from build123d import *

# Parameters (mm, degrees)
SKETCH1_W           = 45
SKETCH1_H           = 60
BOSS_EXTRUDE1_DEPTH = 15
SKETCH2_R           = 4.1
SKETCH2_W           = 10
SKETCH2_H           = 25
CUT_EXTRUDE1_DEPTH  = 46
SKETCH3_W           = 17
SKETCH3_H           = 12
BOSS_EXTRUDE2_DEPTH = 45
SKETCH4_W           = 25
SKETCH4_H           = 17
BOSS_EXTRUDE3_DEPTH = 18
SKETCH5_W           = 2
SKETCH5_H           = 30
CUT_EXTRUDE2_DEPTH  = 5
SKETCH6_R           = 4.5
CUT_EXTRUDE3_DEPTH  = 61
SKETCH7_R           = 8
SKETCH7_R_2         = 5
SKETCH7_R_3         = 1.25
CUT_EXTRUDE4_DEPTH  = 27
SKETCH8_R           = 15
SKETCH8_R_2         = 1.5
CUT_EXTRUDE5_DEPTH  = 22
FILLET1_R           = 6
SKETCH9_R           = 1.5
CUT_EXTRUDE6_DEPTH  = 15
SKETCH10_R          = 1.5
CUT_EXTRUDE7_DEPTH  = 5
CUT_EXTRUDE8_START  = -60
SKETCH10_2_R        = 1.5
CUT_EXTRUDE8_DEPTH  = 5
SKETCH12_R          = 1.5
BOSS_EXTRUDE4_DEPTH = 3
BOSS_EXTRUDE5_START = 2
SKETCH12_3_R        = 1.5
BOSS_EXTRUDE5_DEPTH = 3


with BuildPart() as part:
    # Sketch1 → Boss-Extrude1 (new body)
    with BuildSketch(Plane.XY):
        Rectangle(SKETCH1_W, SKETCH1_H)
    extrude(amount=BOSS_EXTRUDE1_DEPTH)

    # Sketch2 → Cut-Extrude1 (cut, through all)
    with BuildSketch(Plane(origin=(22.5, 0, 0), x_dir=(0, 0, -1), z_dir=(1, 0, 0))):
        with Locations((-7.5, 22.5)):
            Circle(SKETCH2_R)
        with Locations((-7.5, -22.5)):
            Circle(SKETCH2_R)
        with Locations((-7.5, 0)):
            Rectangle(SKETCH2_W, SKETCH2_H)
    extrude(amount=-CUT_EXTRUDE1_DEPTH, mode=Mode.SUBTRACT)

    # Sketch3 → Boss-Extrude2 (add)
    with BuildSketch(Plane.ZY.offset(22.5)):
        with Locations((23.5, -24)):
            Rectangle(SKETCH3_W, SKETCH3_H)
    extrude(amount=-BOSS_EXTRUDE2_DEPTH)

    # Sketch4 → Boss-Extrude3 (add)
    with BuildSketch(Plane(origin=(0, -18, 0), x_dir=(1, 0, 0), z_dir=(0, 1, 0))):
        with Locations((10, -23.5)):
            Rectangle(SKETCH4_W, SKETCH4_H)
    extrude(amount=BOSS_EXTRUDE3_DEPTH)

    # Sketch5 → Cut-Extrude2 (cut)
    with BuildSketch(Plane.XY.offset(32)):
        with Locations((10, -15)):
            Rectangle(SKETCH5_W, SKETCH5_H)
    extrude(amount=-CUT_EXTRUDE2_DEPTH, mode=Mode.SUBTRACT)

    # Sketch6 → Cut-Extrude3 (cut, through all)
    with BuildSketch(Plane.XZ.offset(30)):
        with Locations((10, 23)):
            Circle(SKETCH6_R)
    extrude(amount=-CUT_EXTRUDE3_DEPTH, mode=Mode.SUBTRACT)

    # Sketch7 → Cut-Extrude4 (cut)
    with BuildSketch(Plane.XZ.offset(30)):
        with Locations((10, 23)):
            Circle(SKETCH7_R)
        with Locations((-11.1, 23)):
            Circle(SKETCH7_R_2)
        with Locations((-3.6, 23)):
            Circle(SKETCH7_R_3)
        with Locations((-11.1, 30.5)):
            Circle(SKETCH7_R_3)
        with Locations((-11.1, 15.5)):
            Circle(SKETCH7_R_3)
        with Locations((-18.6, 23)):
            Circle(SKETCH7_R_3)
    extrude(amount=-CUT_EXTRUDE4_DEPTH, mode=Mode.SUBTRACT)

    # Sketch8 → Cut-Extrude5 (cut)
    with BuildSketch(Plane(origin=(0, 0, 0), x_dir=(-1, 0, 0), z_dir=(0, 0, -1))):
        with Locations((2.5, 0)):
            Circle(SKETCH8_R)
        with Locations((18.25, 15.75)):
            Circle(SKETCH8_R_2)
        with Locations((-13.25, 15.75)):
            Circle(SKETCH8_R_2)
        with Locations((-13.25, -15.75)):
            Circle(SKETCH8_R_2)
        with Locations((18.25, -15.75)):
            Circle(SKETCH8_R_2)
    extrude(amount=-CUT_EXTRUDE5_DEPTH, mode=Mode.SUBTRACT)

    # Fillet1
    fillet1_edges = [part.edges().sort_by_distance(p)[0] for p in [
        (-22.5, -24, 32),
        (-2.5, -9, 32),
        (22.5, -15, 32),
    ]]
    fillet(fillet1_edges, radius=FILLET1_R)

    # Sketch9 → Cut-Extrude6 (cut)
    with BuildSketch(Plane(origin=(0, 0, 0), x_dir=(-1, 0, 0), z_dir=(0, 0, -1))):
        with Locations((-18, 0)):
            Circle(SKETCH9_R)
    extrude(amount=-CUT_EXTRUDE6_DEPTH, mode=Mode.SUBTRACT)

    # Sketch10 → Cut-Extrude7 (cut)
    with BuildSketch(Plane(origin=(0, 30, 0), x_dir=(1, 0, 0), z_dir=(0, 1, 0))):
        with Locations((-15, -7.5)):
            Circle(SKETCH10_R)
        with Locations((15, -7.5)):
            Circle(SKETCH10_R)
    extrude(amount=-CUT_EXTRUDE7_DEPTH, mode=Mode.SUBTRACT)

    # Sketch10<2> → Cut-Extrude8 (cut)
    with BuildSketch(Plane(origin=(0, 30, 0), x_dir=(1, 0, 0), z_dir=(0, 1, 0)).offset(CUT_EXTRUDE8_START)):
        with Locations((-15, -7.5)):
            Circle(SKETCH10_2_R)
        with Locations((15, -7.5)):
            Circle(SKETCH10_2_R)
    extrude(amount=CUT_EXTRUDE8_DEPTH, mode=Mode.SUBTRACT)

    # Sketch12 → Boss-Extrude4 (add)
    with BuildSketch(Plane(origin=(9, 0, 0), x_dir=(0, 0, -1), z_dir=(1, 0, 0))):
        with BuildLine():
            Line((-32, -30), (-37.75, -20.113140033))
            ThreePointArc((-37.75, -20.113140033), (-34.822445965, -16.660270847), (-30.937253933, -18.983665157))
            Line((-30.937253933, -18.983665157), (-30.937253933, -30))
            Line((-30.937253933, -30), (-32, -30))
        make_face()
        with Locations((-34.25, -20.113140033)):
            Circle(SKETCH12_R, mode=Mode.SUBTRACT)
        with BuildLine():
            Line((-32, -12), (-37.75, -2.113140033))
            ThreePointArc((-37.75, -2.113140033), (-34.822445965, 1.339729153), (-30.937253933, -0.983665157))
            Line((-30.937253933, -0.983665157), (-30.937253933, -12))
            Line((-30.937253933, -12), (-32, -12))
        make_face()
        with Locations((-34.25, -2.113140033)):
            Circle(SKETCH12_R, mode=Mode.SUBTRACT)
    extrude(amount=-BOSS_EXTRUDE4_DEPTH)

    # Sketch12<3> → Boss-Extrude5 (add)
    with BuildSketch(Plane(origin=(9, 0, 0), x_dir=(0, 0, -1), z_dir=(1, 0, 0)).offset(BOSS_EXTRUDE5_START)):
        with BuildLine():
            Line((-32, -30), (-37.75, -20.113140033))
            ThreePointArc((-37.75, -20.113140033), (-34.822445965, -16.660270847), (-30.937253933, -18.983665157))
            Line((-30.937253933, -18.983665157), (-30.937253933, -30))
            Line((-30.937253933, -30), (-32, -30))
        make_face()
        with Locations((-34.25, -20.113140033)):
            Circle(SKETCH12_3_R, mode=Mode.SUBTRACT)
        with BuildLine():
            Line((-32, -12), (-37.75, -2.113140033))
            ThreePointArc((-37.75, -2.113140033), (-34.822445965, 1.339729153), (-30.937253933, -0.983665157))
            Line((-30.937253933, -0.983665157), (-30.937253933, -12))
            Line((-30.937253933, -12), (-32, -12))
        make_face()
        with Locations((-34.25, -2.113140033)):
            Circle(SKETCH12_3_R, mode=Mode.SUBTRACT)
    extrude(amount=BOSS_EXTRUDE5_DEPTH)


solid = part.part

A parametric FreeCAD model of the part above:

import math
import FreeCAD as App
import Part
import Sketcher
from FreeCAD import Vector


def edges_at(feature, points):
    """Names of the edges that pass closest to the given points."""
    edges = feature.Shape.Edges
    near = lambda p: min(range(len(edges)), key=lambda i: edges[i].distToShape(Part.Vertex(*p))[0])
    return sorted({f"Edge{near(p) + 1}" for p in points})


def add_polygon(sketch, points):
    """Adds a closed chain of lines whose ends are joined by coincident constraints."""
    first, n = sketch.GeometryCount, len(points)
    for a, b in zip(points, points[1:] + points[:1]):
        sketch.addGeometry(Part.LineSegment(App.Vector(*a, 0), App.Vector(*b, 0)), False)
    for i in range(n):
        sketch.addConstraint(Sketcher.Constraint("Coincident", first + i, 2, first + (i + 1) % n, 1))

doc = App.newDocument("Part")
body = doc.addObject("PartDesign::Body", "Body")

# Sketch on XY plane
sketch1 = body.newObject("Sketcher::SketchObject", "Sketch")
sketch1.AttachmentSupport = (doc.getObject("XY_Plane"), [""])
sketch1.MapMode = "FlatFace"
add_polygon(sketch1, [(-22.5, 30), (-22.5, -30), (22.5, -30), (22.5, 30)])  # lines 0-3
sketch1.addConstraint([
    Sketcher.Constraint("Vertical", 0),
    Sketcher.Constraint("Horizontal", 1),
    Sketcher.Constraint("Vertical", 2),
    Sketcher.Constraint("Horizontal", 3),
    Sketcher.Constraint("Symmetric", 0, 2, 2, 2, -1, 1),
    Sketcher.Constraint("DistanceX", 1, 1, 1, 2, 45.0),
    Sketcher.Constraint("DistanceY", 0, 2, 0, 1, 60.0),
])
pad1 = body.newObject("PartDesign::Pad", "Pad")
pad1.Profile = sketch1
pad1.Length = 15

# Sketch on YZ plane
sketch2 = body.newObject("Sketcher::SketchObject", "Sketch001")
sketch2.AttachmentSupport = (doc.getObject("YZ_Plane"), [""])
sketch2.MapMode = "FlatFace"
sketch2.AttachmentOffset = App.Placement(Vector(0, 0, 22.5), App.Rotation())
sketch2.addGeometry(Part.Circle(Vector(22.5, 7.5, 0), Vector(0, 0, 1), 4.1), False)  # 0
sketch2.addGeometry(Part.Circle(Vector(-22.5, 7.5, 0), Vector(0, 0, 1), 4.1), False)  # 1
add_polygon(sketch2, [(12.5, 12.5), (-12.5, 12.5), (-12.5, 2.5), (12.5, 2.5)])  # lines 2-5
sketch2.addConstraint([
    Sketcher.Constraint("Horizontal", 2),
    Sketcher.Constraint("Vertical", 3),
    Sketcher.Constraint("Horizontal", 4),
    Sketcher.Constraint("Vertical", 5),
    Sketcher.Constraint("Equal", 0, 1),
    Sketcher.Constraint("Symmetric", 0, 3, 1, 3, -2),
    Sketcher.Constraint("Diameter", 0, 8.2),
    Sketcher.Constraint("DistanceX", 2, 2, 2, 1, 25.0),
    Sketcher.Constraint("DistanceY", 3, 2, 3, 1, 10.0),
    Sketcher.Constraint("DistanceX", 1, 3, 0, 3, 45.0),
    Sketcher.Constraint("DistanceX", 1, 3, 2, 2, 10.0),
    Sketcher.Constraint("DistanceY", 1, 3, 2, 2, 5.0),
    Sketcher.Constraint("DistanceY", -1, 1, 0, 3, 7.5),
])
pocket1 = body.newObject("PartDesign::Pocket", "Pocket")
pocket1.Profile = sketch2
pocket1.Type = "ThroughAll"

# Sketch on YZ plane
sketch3 = body.newObject("Sketcher::SketchObject", "Sketch002")
sketch3.AttachmentSupport = (doc.getObject("YZ_Plane"), [""])
sketch3.MapMode = "FlatFace"
sketch3.AttachmentOffset = App.Placement(Vector(0, 0, -22.5), App.Rotation())
add_polygon(sketch3, [(-18, 15), (-30, 15), (-30, 32), (-18, 32)])  # lines 0-3
sketch3.addConstraint([
    Sketcher.Constraint("Horizontal", 0),
    Sketcher.Constraint("Vertical", 1),
    Sketcher.Constraint("Horizontal", 2),
    Sketcher.Constraint("Vertical", 3),
    Sketcher.Constraint("DistanceX", 0, 2, 0, 1, 12.0),
    Sketcher.Constraint("DistanceY", 1, 1, 1, 2, 17.0),
    Sketcher.Constraint("DistanceX", 0, 2, -1, 1, 30.0),
    Sketcher.Constraint("DistanceY", -1, 1, 0, 2, 15.0),
])
pad2 = body.newObject("PartDesign::Pad", "Pad001")
pad2.Profile = sketch3
pad2.Length = 45

# Sketch on XZ plane
sketch4 = body.newObject("Sketcher::SketchObject", "Sketch003")
sketch4.AttachmentSupport = (doc.getObject("XZ_Plane"), [""])
sketch4.MapMode = "FlatFace"
sketch4.AttachmentOffset = App.Placement(Vector(0, 0, 18), App.Rotation())
add_polygon(sketch4, [(-2.5, 15), (-2.5, 32), (22.5, 32), (22.5, 15)])  # lines 0-3
sketch4.addConstraint([
    Sketcher.Constraint("Vertical", 0),
    Sketcher.Constraint("Horizontal", 1),
    Sketcher.Constraint("Vertical", 2),
    Sketcher.Constraint("Horizontal", 3),
    Sketcher.Constraint("DistanceX", 1, 1, 1, 2, 25.0),
    Sketcher.Constraint("DistanceY", 0, 1, 0, 2, 17.0),
    Sketcher.Constraint("DistanceY", -1, 1, 0, 2, 32.0),
    Sketcher.Constraint("DistanceX", 0, 2, -1, 1, 2.5),
])
pad3 = body.newObject("PartDesign::Pad", "Pad002")
pad3.Profile = sketch4
pad3.Length = 18
pad3.Reversed = True

# Sketch on XY plane
sketch5 = body.newObject("Sketcher::SketchObject", "Sketch004")
sketch5.AttachmentSupport = (doc.getObject("XY_Plane"), [""])
sketch5.MapMode = "FlatFace"
sketch5.AttachmentOffset = App.Placement(Vector(0, 0, 32), App.Rotation())
add_polygon(sketch5, [(9, 0), (9, -30), (11, -30), (11, 0)])  # lines 0-3
sketch5.addConstraint([
    Sketcher.Constraint("Vertical", 0),
    Sketcher.Constraint("Horizontal", 1),
    Sketcher.Constraint("Vertical", 2),
    Sketcher.Constraint("Horizontal", 3),
    Sketcher.Constraint("PointOnObject", 2, 2, -1),
    Sketcher.Constraint("DistanceX", 1, 1, 1, 2, 2.0),
    Sketcher.Constraint("DistanceY", 0, 2, 0, 1, 30.0),
    Sketcher.Constraint("DistanceX", -1, 1, 0, 2, 9.0),
])
pocket2 = body.newObject("PartDesign::Pocket", "Pocket001")
pocket2.Profile = sketch5
pocket2.Length = 5

# Sketch on XZ plane
sketch6 = body.newObject("Sketcher::SketchObject", "Sketch005")
sketch6.AttachmentSupport = (doc.getObject("XZ_Plane"), [""])
sketch6.MapMode = "FlatFace"
sketch6.AttachmentOffset = App.Placement(Vector(0, 0, 30), App.Rotation())
sketch6.addGeometry(Part.Circle(Vector(10, 23, 0), Vector(0, 0, 1), 4.5), False)
sketch6.addConstraint([
    Sketcher.Constraint("Diameter", 0, 9.0),
    Sketcher.Constraint("DistanceX", -1, 1, 0, 3, 10.0),
    Sketcher.Constraint("DistanceY", -1, 1, 0, 3, 23.0),
])
pocket3 = body.newObject("PartDesign::Pocket", "Pocket002")
pocket3.Profile = sketch6
pocket3.Type = "ThroughAll"

# Sketch on XZ plane
sketch7 = body.newObject("Sketcher::SketchObject", "Sketch006")
sketch7.AttachmentSupport = (doc.getObject("XZ_Plane"), [""])
sketch7.MapMode = "FlatFace"
sketch7.AttachmentOffset = App.Placement(Vector(0, 0, 30), App.Rotation())
sketch7.addGeometry([
    Part.Circle(Vector(10, 23, 0), Vector(0, 0, 1), 8),  # 0
    Part.Circle(Vector(-11.1, 23, 0), Vector(0, 0, 1), 5),  # 1
    Part.Circle(Vector(-3.6, 23, 0), Vector(0, 0, 1), 1.25),  # 2
    Part.Circle(Vector(-11.1, 30.5, 0), Vector(0, 0, 1), 1.25),  # 3
    Part.Circle(Vector(-11.1, 15.5, 0), Vector(0, 0, 1), 1.25),  # 4
    Part.Circle(Vector(-18.6, 23, 0), Vector(0, 0, 1), 1.25),  # 5
], False)
sketch7.addConstraint([
    Sketcher.Constraint("Equal", 2, 3),
    Sketcher.Constraint("Equal", 3, 4),
    Sketcher.Constraint("Equal", 4, 5),
    Sketcher.Constraint("Horizontal", 0, 3, 1, 3),
    Sketcher.Constraint("Horizontal", 1, 3, 2, 3),
    Sketcher.Constraint("Horizontal", 2, 3, 5, 3),
    Sketcher.Constraint("Vertical", 1, 3, 3, 3),
    Sketcher.Constraint("Vertical", 3, 3, 4, 3),
    Sketcher.Constraint("Diameter", 0, 16.0),
    Sketcher.Constraint("Diameter", 1, 10.0),
    Sketcher.Constraint("Diameter", 2, 2.5),
    Sketcher.Constraint("DistanceX", -1, 1, 0, 3, 10.0),
    Sketcher.Constraint("DistanceY", -1, 1, 0, 3, 23.0),
    Sketcher.Constraint("DistanceY", 4, 3, 3, 3, 15.0),
    Sketcher.Constraint("DistanceX", 5, 3, 2, 3, 15.0),
    Sketcher.Constraint("DistanceX", 1, 3, -1, 1, 11.1),
    Sketcher.Constraint("DistanceX", 2, 3, -1, 1, 3.6),
    Sketcher.Constraint("DistanceY", -1, 1, 3, 3, 30.5),
])
pocket4 = body.newObject("PartDesign::Pocket", "Pocket003")
pocket4.Profile = sketch7
pocket4.Length = 27

# Sketch on XY plane
sketch8 = body.newObject("Sketcher::SketchObject", "Sketch007")
sketch8.AttachmentSupport = (doc.getObject("XY_Plane"), [""])
sketch8.MapMode = "FlatFace"
sketch8.addGeometry([
    Part.Circle(Vector(-2.5, 0, 0), Vector(0, 0, 1), 15),  # 0
    Part.Circle(Vector(-18.25, 15.75, 0), Vector(0, 0, 1), 1.5),  # 1
    Part.Circle(Vector(13.25, 15.75, 0), Vector(0, 0, 1), 1.5),  # 2
    Part.Circle(Vector(13.25, -15.75, 0), Vector(0, 0, 1), 1.5),  # 3
    Part.Circle(Vector(-18.25, -15.75, 0), Vector(0, 0, 1), 1.5),  # 4
], False)
sketch8.addConstraint([
    Sketcher.Constraint("Equal", 1, 2),
    Sketcher.Constraint("Equal", 2, 3),
    Sketcher.Constraint("Equal", 3, 4),
    Sketcher.Constraint("Symmetric", 2, 3, 3, 3, -1),
    Sketcher.Constraint("Symmetric", 1, 3, 4, 3, -1),
    Sketcher.Constraint("PointOnObject", 0, 3, -1),
    Sketcher.Constraint("Horizontal", 1, 3, 2, 3),
    Sketcher.Constraint("Diameter", 0, 30.0),
    Sketcher.Constraint("Diameter", 1, 3.0),
    Sketcher.Constraint("DistanceX", 0, 3, -1, 1, 2.5),
    Sketcher.Constraint("DistanceX", 1, 3, 2, 3, 31.5),
    Sketcher.Constraint("DistanceY", 3, 3, 2, 3, 31.5),
    Sketcher.Constraint("DistanceX", 1, 3, -1, 1, 18.25),
])
pocket5 = body.newObject("PartDesign::Pocket", "Pocket004")
pocket5.Profile = sketch8
pocket5.Length = 22
pocket5.Reversed = True
doc.recompute()

fillet = body.newObject("PartDesign::Fillet", "Fillet")
fillet.Base = (pocket5, edges_at(pocket5, [(-22.5, -24, 32), (-2.5, -9, 32), (22.5, -15, 32)]))
fillet.Radius = 6

# Sketch on XY plane
sketch9 = body.newObject("Sketcher::SketchObject", "Sketch008")
sketch9.AttachmentSupport = (doc.getObject("XY_Plane"), [""])
sketch9.MapMode = "FlatFace"
sketch9.addGeometry(Part.Circle(Vector(18, 0, 0), Vector(0, 0, 1), 1.5), False)
sketch9.addConstraint([
    Sketcher.Constraint("PointOnObject", 0, 3, -1),
    Sketcher.Constraint("Diameter", 0, 3.0),
    Sketcher.Constraint("DistanceX", -1, 1, 0, 3, 18.0),
])
pocket6 = body.newObject("PartDesign::Pocket", "Pocket005")
pocket6.Profile = sketch9
pocket6.Length = 15
pocket6.Reversed = True

# Sketch on XZ plane
sketch10 = body.newObject("Sketcher::SketchObject", "Sketch009")
sketch10.AttachmentSupport = (doc.getObject("XZ_Plane"), [""])
sketch10.MapMode = "FlatFace"
sketch10.AttachmentOffset = App.Placement(Vector(0, 0, -30), App.Rotation())
sketch10.addGeometry([
    Part.Circle(Vector(-15, 7.5, 0), Vector(0, 0, 1), 1.5),
    Part.Circle(Vector(15, 7.5, 0), Vector(0, 0, 1), 1.5),
], False)
sketch10.addConstraint([
    Sketcher.Constraint("Equal", 0, 1),
    Sketcher.Constraint("Symmetric", 0, 3, 1, 3, -2),
    Sketcher.Constraint("Diameter", 0, 3.0),
    Sketcher.Constraint("DistanceX", 0, 3, -1, 1, 15.0),
    Sketcher.Constraint("DistanceY", -1, 1, 0, 3, 7.5),
])
pocket7 = body.newObject("PartDesign::Pocket", "Pocket006")
pocket7.Profile = sketch10
pocket7.Length = 5
pocket7.Reversed = True

# Sketch on XZ plane
sketch11 = body.newObject("Sketcher::SketchObject", "Sketch010")
sketch11.AttachmentSupport = (doc.getObject("XZ_Plane"), [""])
sketch11.MapMode = "FlatFace"
sketch11.AttachmentOffset = App.Placement(Vector(0, 0, 30), App.Rotation())
sketch11.addGeometry([
    Part.Circle(Vector(-15, 7.5, 0), Vector(0, 0, 1), 1.5),
    Part.Circle(Vector(15, 7.5, 0), Vector(0, 0, 1), 1.5),
], False)
sketch11.addConstraint([
    Sketcher.Constraint("Equal", 0, 1),
    Sketcher.Constraint("Symmetric", 0, 3, 1, 3, -2),
    Sketcher.Constraint("Diameter", 0, 3.0),
    Sketcher.Constraint("DistanceX", 0, 3, -1, 1, 15.0),
    Sketcher.Constraint("DistanceY", -1, 1, 0, 3, 7.5),
])
pocket8 = body.newObject("PartDesign::Pocket", "Pocket007")
pocket8.Profile = sketch11
pocket8.Length = 5

# Sketch on YZ plane
sketch12 = body.newObject("Sketcher::SketchObject", "Sketch011")
sketch12.AttachmentSupport = (doc.getObject("YZ_Plane"), [""])
sketch12.MapMode = "FlatFace"
sketch12.AttachmentOffset = App.Placement(Vector(0, 0, 9), App.Rotation())
sketch12.addGeometry([
    Part.LineSegment(Vector(-20.11314, 37.75, 0), Vector(-30, 32, 0)),  # 0
    Part.LineSegment(Vector(-30, 32, 0), Vector(-30, 30.937254, 0)),  # 1
    Part.LineSegment(Vector(-30, 30.937254, 0), Vector(-18.983665, 30.937254, 0)),  # 2
    Part.ArcOfCircle(Part.Circle(Vector(-20.11314, 34.25, 0), Vector(0, 0, 1), 3.5), math.radians(-71.173281), math.radians(90)),  # 3
    Part.Circle(Vector(-20.11314, 34.25, 0), Vector(0, 0, 1), 1.5),  # 4
    Part.LineSegment(Vector(-2.11314, 37.75, 0), Vector(-12, 32, 0)),  # 5
    Part.LineSegment(Vector(-12, 32, 0), Vector(-12, 30.937254, 0)),  # 6
    Part.LineSegment(Vector(-12, 30.937254, 0), Vector(-0.983665, 30.937254, 0)),  # 7
    Part.ArcOfCircle(Part.Circle(Vector(-2.11314, 34.25, 0), Vector(0, 0, 1), 3.5), math.radians(-71.173281), math.radians(90)),  # 8
    Part.Circle(Vector(-2.11314, 34.25, 0), Vector(0, 0, 1), 1.5),  # 9
], False)
sketch12.addConstraint([
    Sketcher.Constraint("Coincident", 0, 2, 1, 1),
    Sketcher.Constraint("Coincident", 1, 2, 2, 1),
    Sketcher.Constraint("Coincident", 2, 2, 3, 1),
    Sketcher.Constraint("Coincident", 3, 2, 0, 1),
    Sketcher.Constraint("Coincident", 5, 2, 6, 1),
    Sketcher.Constraint("Coincident", 6, 2, 7, 1),
    Sketcher.Constraint("Coincident", 7, 2, 8, 1),
    Sketcher.Constraint("Coincident", 8, 2, 5, 1),
    Sketcher.Constraint("Vertical", 1),
    Sketcher.Constraint("Horizontal", 2),
    Sketcher.Constraint("Vertical", 6),
    Sketcher.Constraint("Horizontal", 7),
    Sketcher.Constraint("Coincident", 4, 3, 3, 3),
    Sketcher.Constraint("Coincident", 9, 3, 8, 3),
    Sketcher.Constraint("Equal", 3, 8),
    Sketcher.Constraint("Equal", 4, 9),
    Sketcher.Constraint("Parallel", 0, 5),
    Sketcher.Constraint("Horizontal", 4, 3, 8, 3),
    Sketcher.Constraint("Horizontal", 0, 2, 5, 2),
    Sketcher.Constraint("Horizontal", 2, 2, 6, 2),
    Sketcher.Constraint("Vertical", 4, 3, 3, 2),
    Sketcher.Constraint("Vertical", 9, 3, 8, 2),
    Sketcher.Constraint("Diameter", 4, 3.0),
    Sketcher.Constraint("Radius", 3, 3.5),
    Sketcher.Constraint("DistanceX", 0, 2, -1, 1, 30.0),
    Sketcher.Constraint("DistanceY", -1, 1, 0, 2, 32.0),
    Sketcher.Constraint("DistanceX", 5, 2, -1, 1, 12.0),
    Sketcher.Constraint("DistanceY", -1, 1, 3, 3, 34.25),
    Sketcher.Constraint("Distance", 0, 11.437329),
    Sketcher.Constraint("DistanceX", 2, 1, 2, 2, 11.016335),
])
pad4 = body.newObject("PartDesign::Pad", "Pad003")
pad4.Profile = sketch12
pad4.Length = 3
pad4.Reversed = True

# Sketch on YZ plane
sketch13 = body.newObject("Sketcher::SketchObject", "Sketch012")
sketch13.AttachmentSupport = (doc.getObject("YZ_Plane"), [""])
sketch13.MapMode = "FlatFace"
sketch13.AttachmentOffset = App.Placement(Vector(0, 0, 11), App.Rotation())
sketch13.addGeometry([
    Part.LineSegment(Vector(-20.11314, 37.75, 0), Vector(-30, 32, 0)),  # 0
    Part.LineSegment(Vector(-30, 32, 0), Vector(-30, 30.937254, 0)),  # 1
    Part.LineSegment(Vector(-30, 30.937254, 0), Vector(-18.983665, 30.937254, 0)),  # 2
    Part.ArcOfCircle(Part.Circle(Vector(-20.11314, 34.25, 0), Vector(0, 0, 1), 3.5), math.radians(-71.173281), math.radians(90)),  # 3
    Part.Circle(Vector(-20.11314, 34.25, 0), Vector(0, 0, 1), 1.5),  # 4
    Part.LineSegment(Vector(-2.11314, 37.75, 0), Vector(-12, 32, 0)),  # 5
    Part.LineSegment(Vector(-12, 32, 0), Vector(-12, 30.937254, 0)),  # 6
    Part.LineSegment(Vector(-12, 30.937254, 0), Vector(-0.983665, 30.937254, 0)),  # 7
    Part.ArcOfCircle(Part.Circle(Vector(-2.11314, 34.25, 0), Vector(0, 0, 1), 3.5), math.radians(-71.173281), math.radians(90)),  # 8
    Part.Circle(Vector(-2.11314, 34.25, 0), Vector(0, 0, 1), 1.5),  # 9
], False)
sketch13.addConstraint([
    Sketcher.Constraint("Coincident", 0, 2, 1, 1),
    Sketcher.Constraint("Coincident", 1, 2, 2, 1),
    Sketcher.Constraint("Coincident", 2, 2, 3, 1),
    Sketcher.Constraint("Coincident", 3, 2, 0, 1),
    Sketcher.Constraint("Coincident", 5, 2, 6, 1),
    Sketcher.Constraint("Coincident", 6, 2, 7, 1),
    Sketcher.Constraint("Coincident", 7, 2, 8, 1),
    Sketcher.Constraint("Coincident", 8, 2, 5, 1),
    Sketcher.Constraint("Vertical", 1),
    Sketcher.Constraint("Horizontal", 2),
    Sketcher.Constraint("Vertical", 6),
    Sketcher.Constraint("Horizontal", 7),
    Sketcher.Constraint("Coincident", 4, 3, 3, 3),
    Sketcher.Constraint("Coincident", 9, 3, 8, 3),
    Sketcher.Constraint("Equal", 3, 8),
    Sketcher.Constraint("Equal", 4, 9),
    Sketcher.Constraint("Parallel", 0, 5),
    Sketcher.Constraint("Horizontal", 4, 3, 8, 3),
    Sketcher.Constraint("Horizontal", 0, 2, 5, 2),
    Sketcher.Constraint("Horizontal", 2, 2, 6, 2),
    Sketcher.Constraint("Vertical", 4, 3, 3, 2),
    Sketcher.Constraint("Vertical", 9, 3, 8, 2),
    Sketcher.Constraint("Diameter", 4, 3.0),
    Sketcher.Constraint("Radius", 3, 3.5),
    Sketcher.Constraint("DistanceX", 0, 2, -1, 1, 30.0),
    Sketcher.Constraint("DistanceY", -1, 1, 0, 2, 32.0),
    Sketcher.Constraint("DistanceX", 5, 2, -1, 1, 12.0),
    Sketcher.Constraint("DistanceY", -1, 1, 3, 3, 34.25),
    Sketcher.Constraint("Distance", 0, 11.437329),
    Sketcher.Constraint("DistanceX", 2, 1, 2, 2, 11.016335),
])
pad5 = body.newObject("PartDesign::Pad", "Pad004")
pad5.Profile = sketch13
pad5.Length = 3

doc.recompute()
